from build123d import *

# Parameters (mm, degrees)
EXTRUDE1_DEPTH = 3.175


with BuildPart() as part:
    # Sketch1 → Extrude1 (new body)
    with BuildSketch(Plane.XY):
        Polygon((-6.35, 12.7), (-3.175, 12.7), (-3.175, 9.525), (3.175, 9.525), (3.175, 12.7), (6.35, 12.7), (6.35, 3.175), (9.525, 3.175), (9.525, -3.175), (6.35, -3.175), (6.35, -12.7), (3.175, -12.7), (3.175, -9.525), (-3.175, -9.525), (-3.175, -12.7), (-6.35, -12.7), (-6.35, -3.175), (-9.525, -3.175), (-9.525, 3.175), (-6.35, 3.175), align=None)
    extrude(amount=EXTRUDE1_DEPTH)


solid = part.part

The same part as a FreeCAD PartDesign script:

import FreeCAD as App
import Part
import Sketcher

V = App.Vector
Q = App.Units.Quantity

doc = App.newDocument("Part")
params = doc.addObject("Spreadsheet::Sheet", "Params")
for row, (alias, value) in enumerate([
    ("sketch1_width", "0.25 in"),
    ("pad1_length", "0.125 in"),
], start=1):
    params.set(f"A{row}", alias)
    params.set(f"B{row}", "=" + value)
    params.setAlias(f"B{row}", alias)

body = doc.addObject("PartDesign::Body", "Body")

# Sketch on XY plane
sketch1 = body.newObject("Sketcher::SketchObject", "Sketch")
sketch1.AttachmentSupport = (doc.getObject("XY_Plane"), [""])
sketch1.MapMode = "FlatFace"
sketch1.addGeometry([
    Part.LineSegment(V(-3.175, 12.7, 0), V(-6.35, 12.7, 0)),  # 0
    Part.LineSegment(V(-6.35, 12.7, 0), V(-6.35, 3.175, 0)),  # 1
    Part.LineSegment(V(-6.35, 3.175, 0), V(-9.525, 3.175, 0)),  # 2
    Part.LineSegment(V(-9.525, 3.175, 0), V(-9.525, -3.175, 0)),  # 3
    Part.LineSegment(V(-9.525, -3.175, 0), V(-6.35, -3.175, 0)),  # 4
    Part.LineSegment(V(-6.35, -3.175, 0), V(-6.35, -12.7, 0)),  # 5
    Part.LineSegment(V(-6.35, -12.7, 0), V(-3.175, -12.7, 0)),  # 6
    Part.LineSegment(V(-3.175, -12.7, 0), V(-3.175, -9.525, 0)),  # 7
    Part.LineSegment(V(-3.175, -9.525, 0), V(3.175, -9.525, 0)),  # 8
    Part.LineSegment(V(3.175, -9.525, 0), V(3.175, -12.7, 0)),  # 9
    Part.LineSegment(V(3.175, -12.7, 0), V(6.35, -12.7, 0)),  # 10
    Part.LineSegment(V(6.35, -12.7, 0), V(6.35, -3.175, 0)),  # 11
    Part.LineSegment(V(6.35, -3.175, 0), V(9.525, -3.175, 0)),  # 12
    Part.LineSegment(V(9.525, -3.175, 0), V(9.525, 3.175, 0)),  # 13
    Part.LineSegment(V(9.525, 3.175, 0), V(6.35, 3.175, 0)),  # 14
    Part.LineSegment(V(6.35, 3.175, 0), V(6.35, 12.7, 0)),  # 15
    Part.LineSegment(V(6.35, 12.7, 0), V(3.175, 12.7, 0)),  # 16
    Part.LineSegment(V(3.175, 12.7, 0), V(3.175, 9.525, 0)),  # 17
    Part.LineSegment(V(3.175, 9.525, 0), V(-3.175, 9.525, 0)),  # 18
    Part.LineSegment(V(-3.175, 9.525, 0), V(-3.175, 12.7, 0)),  # 19
], False)
sketch1.addConstraint([
    Sketcher.Constraint("Coincident", 0, 2, 1, 1),
    Sketcher.Constraint("Coincident", 1, 2, 2, 1),
    Sketcher.Constraint("Coincident", 2, 2, 3, 1),
    Sketcher.Constraint("Coincident", 3, 2, 4, 1),
    Sketcher.Constraint("Coincident", 4, 2, 5, 1),
    Sketcher.Constraint("Coincident", 5, 2, 6, 1),
    Sketcher.Constraint("Coincident", 6, 2, 7, 1),
    Sketcher.Constraint("Coincident", 7, 2, 8, 1),
    Sketcher.Constraint("Coincident", 8, 2, 9, 1),
    Sketcher.Constraint("Coincident", 9, 2, 10, 1),
    Sketcher.Constraint("Coincident", 10, 2, 11, 1),
    Sketcher.Constraint("Coincident", 11, 2, 12, 1),
    Sketcher.Constraint("Coincident", 12, 2, 13, 1),
    Sketcher.Constraint("Coincident", 13, 2, 14, 1),
    Sketcher.Constraint("Coincident", 14, 2, 15, 1),
    Sketcher.Constraint("Coincident", 15, 2, 16, 1),
    Sketcher.Constraint("Coincident", 16, 2, 17, 1),
    Sketcher.Constraint("Coincident", 17, 2, 18, 1),
    Sketcher.Constraint("Coincident", 18, 2, 19, 1),
    Sketcher.Constraint("Coincident", 19, 2, 0, 1),
    Sketcher.Constraint("Horizontal", 0),
    Sketcher.Constraint("Vertical", 1),
    Sketcher.Constraint("Horizontal", 2),
    Sketcher.Constraint("Vertical", 3),
    Sketcher.Constraint("Horizontal", 4),
    Sketcher.Constraint("Vertical", 5),
    Sketcher.Constraint("Horizontal", 6),
    Sketcher.Constraint("Vertical", 7),
    Sketcher.Constraint("Horizontal", 8),
    Sketcher.Constraint("Vertical", 9),
    Sketcher.Constraint("Horizontal", 10),
    Sketcher.Constraint("Vertical", 11),
    Sketcher.Constraint("Horizontal", 12),
    Sketcher.Constraint("Vertical", 13),
    Sketcher.Constraint("Horizontal", 14),
    Sketcher.Constraint("Vertical", 15),
    Sketcher.Constraint("Horizontal", 16),
    Sketcher.Constraint("Vertical", 17),
    Sketcher.Constraint("Horizontal", 18),
    Sketcher.Constraint("Vertical", 19),
    Sketcher.Constraint("Symmetric", 0, 2, 10, 2, -1, 1),
    Sketcher.Constraint("Symmetric", 2, 2, 12, 2, -1, 1),
    Sketcher.Constraint("Symmetric", 4, 2, 14, 2, -1, 1),
    Sketcher.Constraint("Symmetric", 6, 2, 16, 2, -1, 1),
    Sketcher.Constraint("Symmetric", 8, 2, 18, 2, -1, 1),
    Sketcher.Constraint("Symmetric", 6, 2, 9, 2, -2),
    Sketcher.Constraint("Symmetric", 4, 2, 11, 2, -2),
    Sketcher.Constraint("Equal", 0, 2),
    Sketcher.Constraint("Equal", 18, 3),
    Sketcher.Constraint("Equal", 16, 7),
    Sketcher.Constraint("DistanceY", 5, 2, 0, 2, Q("1 in")),
    Sketcher.Constraint("DistanceX", 8, 1, 8, 2, Q("0.25 in")),
    Sketcher.Constraint("DistanceY", 7, 2, 1, 2, Q("0.5 in")),
])
sketch1.setExpression("Constraints[51]", "Params.sketch1_width")
pad1 = body.newObject("PartDesign::Pad", "Pad")
pad1.Profile = sketch1
pad1.setExpression("Length", "Params.pad1_length")

doc.recompute()
